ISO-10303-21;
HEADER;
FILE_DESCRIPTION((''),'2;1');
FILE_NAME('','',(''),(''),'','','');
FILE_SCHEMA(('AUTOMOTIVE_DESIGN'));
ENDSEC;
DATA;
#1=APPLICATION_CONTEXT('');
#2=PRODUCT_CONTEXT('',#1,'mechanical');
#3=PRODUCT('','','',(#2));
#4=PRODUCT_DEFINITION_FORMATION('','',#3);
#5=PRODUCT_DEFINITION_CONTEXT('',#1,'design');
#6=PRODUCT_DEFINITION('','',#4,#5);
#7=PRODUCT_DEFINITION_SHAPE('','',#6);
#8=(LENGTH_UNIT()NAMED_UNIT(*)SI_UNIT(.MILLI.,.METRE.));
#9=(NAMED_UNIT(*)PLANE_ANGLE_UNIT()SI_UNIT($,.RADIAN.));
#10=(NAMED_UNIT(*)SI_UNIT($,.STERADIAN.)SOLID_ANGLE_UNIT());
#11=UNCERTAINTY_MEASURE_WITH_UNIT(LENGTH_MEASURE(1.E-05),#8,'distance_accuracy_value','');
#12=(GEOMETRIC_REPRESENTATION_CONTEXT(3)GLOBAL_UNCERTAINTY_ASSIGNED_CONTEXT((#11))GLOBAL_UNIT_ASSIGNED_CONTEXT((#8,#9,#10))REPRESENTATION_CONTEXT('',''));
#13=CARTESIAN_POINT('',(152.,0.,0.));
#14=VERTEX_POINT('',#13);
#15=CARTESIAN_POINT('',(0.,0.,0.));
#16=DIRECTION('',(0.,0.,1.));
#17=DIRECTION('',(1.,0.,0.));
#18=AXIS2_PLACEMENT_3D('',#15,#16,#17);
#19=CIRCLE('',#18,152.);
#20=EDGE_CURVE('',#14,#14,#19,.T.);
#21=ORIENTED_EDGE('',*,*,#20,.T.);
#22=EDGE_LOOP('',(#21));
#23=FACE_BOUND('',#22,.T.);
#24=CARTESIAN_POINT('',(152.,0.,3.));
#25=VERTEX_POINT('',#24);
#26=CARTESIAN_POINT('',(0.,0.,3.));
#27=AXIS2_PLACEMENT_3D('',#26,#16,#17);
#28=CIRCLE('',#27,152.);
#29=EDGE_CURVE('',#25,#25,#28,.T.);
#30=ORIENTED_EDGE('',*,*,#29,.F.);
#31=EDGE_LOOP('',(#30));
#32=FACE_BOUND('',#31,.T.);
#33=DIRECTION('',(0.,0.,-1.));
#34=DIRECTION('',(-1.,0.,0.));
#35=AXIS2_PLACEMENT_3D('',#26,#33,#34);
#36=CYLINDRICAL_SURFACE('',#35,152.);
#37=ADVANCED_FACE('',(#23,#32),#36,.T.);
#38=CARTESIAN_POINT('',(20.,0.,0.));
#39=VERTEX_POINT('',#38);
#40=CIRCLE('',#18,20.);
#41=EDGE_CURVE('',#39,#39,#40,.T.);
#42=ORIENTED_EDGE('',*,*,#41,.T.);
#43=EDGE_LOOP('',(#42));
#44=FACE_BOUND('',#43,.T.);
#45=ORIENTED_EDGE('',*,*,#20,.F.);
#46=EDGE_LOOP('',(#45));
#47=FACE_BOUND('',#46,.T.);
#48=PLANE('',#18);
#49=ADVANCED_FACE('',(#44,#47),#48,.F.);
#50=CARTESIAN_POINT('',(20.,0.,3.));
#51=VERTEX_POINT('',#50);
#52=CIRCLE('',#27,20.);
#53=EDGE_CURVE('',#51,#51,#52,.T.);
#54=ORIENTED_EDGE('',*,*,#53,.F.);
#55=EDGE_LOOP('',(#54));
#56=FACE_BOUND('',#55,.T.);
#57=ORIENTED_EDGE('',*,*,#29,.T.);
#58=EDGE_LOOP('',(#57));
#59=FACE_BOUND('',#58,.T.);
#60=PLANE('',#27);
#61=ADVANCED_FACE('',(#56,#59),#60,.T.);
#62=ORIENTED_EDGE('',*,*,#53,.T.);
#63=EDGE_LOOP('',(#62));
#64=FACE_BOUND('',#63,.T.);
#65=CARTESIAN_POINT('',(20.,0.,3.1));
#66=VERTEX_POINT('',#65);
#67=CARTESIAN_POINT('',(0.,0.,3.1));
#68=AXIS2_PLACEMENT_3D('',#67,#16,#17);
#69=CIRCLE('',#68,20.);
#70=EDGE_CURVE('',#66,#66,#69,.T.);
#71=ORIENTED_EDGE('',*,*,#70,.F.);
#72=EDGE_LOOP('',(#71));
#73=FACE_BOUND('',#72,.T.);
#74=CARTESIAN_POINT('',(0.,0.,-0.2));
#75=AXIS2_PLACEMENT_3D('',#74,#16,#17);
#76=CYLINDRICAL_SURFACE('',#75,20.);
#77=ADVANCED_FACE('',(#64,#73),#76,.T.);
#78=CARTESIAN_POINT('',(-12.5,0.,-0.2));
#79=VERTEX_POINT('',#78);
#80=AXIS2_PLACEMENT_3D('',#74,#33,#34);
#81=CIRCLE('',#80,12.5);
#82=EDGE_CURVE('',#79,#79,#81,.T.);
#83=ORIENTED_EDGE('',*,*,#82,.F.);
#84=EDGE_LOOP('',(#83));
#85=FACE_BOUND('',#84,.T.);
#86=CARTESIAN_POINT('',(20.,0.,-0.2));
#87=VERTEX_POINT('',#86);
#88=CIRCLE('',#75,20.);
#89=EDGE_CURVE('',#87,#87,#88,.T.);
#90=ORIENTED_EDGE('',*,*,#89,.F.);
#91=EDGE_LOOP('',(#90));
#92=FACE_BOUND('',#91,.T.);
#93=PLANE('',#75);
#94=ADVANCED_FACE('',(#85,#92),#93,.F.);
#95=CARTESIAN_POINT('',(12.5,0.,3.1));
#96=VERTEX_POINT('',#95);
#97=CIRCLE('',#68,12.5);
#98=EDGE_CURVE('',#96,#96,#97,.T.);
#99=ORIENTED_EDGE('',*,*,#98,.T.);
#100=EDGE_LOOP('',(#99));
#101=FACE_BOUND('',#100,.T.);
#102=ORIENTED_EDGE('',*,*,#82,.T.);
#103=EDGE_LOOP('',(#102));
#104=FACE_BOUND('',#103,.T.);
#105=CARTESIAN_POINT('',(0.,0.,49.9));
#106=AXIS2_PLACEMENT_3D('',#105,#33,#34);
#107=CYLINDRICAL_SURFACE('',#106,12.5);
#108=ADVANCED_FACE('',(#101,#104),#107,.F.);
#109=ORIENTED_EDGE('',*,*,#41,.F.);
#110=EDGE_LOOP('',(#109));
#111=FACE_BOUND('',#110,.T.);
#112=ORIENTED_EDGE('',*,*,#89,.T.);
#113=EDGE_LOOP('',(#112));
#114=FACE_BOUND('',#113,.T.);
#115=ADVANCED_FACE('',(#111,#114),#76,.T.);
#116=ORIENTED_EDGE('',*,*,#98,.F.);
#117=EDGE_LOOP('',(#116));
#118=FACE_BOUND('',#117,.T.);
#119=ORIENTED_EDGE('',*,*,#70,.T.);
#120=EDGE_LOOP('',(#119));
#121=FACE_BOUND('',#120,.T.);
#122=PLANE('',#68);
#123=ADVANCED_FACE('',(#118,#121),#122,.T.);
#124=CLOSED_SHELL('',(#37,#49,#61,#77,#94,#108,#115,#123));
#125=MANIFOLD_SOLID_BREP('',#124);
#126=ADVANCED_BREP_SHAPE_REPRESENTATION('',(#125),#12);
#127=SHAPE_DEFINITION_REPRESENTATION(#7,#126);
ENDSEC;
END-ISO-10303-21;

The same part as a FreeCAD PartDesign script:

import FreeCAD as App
import Part
import Sketcher
from FreeCAD import Vector

doc = App.newDocument("Part")
body = doc.addObject("PartDesign::Body", "Body")

# Sketch on XY plane
sketch1 = body.newObject("Sketcher::SketchObject", "Sketch")
sketch1.AttachmentSupport = (doc.getObject("XY_Plane"), [""])
sketch1.MapMode = "FlatFace"
sketch1.addGeometry(Part.Circle(Vector(0, 0, 0), Vector(0, 0, 1), 152), False)
sketch1.addConstraint([
    Sketcher.Constraint("Coincident", 0, 3, -1, 1),
    Sketcher.Constraint("Diameter", 0, 304.0),
])
pad1 = body.newObject("PartDesign::Pad", "Pad")
pad1.Profile = sketch1
pad1.Length = 3

# Sketch on XY plane
sketch2 = body.newObject("Sketcher::SketchObject", "Sketch001")
sketch2.AttachmentSupport = (doc.getObject("XY_Plane"), [""])
sketch2.MapMode = "FlatFace"
sketch2.AttachmentOffset = App.Placement(Vector(0, 0, 3), App.Rotation())
sketch2.addGeometry(Part.Circle(Vector(0, 0, 0), Vector(0, 0, 1), 12.5), False)
sketch2.addConstraint([
    Sketcher.Constraint("Coincident", 0, 3, -1, 1),
    Sketcher.Constraint("Diameter", 0, 25.0),
])
pocket1 = body.newObject("PartDesign::Pocket", "Pocket")
pocket1.Profile = sketch2
pocket1.Length = 3

# Sketch on XY plane
sketch3 = body.newObject("Sketcher::SketchObject", "Sketch002")
sketch3.AttachmentSupport = (doc.getObject("XY_Plane"), [""])
sketch3.MapMode = "FlatFace"
sketch3.AttachmentOffset = App.Placement(Vector(0, 0, 3), App.Rotation())
sketch3.addGeometry(Part.Circle(Vector(0, 0, 0), Vector(0, 0, 1), 20), False)
sketch3.addConstraint([
    Sketcher.Constraint("Coincident", 0, 3, -1, 1),
    Sketcher.Constraint("Diameter", 0, 40.0),
])
pad2 = body.newObject("PartDesign::Pad", "Pad001")
pad2.Profile = sketch3
pad2.Type = "TwoLengths"
pad2.Length = 0.1
pad2.Length2 = 3.2

# Sketch on XY plane
sketch4 = body.newObject("Sketcher::SketchObject", "Sketch003")
sketch4.AttachmentSupport = (doc.getObject("XY_Plane"), [""])
sketch4.MapMode = "FlatFace"
sketch4.AttachmentOffset = App.Placement(Vector(0, 0, -0.2), App.Rotation())
sketch4.addGeometry(Part.Circle(Vector(0, 0, 0), Vector(0, 0, 1), 12.5), False)
sketch4.addConstraint([
    Sketcher.Constraint("Coincident", 0, 3, -1, 1),
    Sketcher.Constraint("Diameter", 0, 25.0),
])
pocket2 = body.newObject("PartDesign::Pocket", "Pocket001")
pocket2.Profile = sketch4
pocket2.Length = 50.1
pocket2.Reversed = True

doc.recompute()
